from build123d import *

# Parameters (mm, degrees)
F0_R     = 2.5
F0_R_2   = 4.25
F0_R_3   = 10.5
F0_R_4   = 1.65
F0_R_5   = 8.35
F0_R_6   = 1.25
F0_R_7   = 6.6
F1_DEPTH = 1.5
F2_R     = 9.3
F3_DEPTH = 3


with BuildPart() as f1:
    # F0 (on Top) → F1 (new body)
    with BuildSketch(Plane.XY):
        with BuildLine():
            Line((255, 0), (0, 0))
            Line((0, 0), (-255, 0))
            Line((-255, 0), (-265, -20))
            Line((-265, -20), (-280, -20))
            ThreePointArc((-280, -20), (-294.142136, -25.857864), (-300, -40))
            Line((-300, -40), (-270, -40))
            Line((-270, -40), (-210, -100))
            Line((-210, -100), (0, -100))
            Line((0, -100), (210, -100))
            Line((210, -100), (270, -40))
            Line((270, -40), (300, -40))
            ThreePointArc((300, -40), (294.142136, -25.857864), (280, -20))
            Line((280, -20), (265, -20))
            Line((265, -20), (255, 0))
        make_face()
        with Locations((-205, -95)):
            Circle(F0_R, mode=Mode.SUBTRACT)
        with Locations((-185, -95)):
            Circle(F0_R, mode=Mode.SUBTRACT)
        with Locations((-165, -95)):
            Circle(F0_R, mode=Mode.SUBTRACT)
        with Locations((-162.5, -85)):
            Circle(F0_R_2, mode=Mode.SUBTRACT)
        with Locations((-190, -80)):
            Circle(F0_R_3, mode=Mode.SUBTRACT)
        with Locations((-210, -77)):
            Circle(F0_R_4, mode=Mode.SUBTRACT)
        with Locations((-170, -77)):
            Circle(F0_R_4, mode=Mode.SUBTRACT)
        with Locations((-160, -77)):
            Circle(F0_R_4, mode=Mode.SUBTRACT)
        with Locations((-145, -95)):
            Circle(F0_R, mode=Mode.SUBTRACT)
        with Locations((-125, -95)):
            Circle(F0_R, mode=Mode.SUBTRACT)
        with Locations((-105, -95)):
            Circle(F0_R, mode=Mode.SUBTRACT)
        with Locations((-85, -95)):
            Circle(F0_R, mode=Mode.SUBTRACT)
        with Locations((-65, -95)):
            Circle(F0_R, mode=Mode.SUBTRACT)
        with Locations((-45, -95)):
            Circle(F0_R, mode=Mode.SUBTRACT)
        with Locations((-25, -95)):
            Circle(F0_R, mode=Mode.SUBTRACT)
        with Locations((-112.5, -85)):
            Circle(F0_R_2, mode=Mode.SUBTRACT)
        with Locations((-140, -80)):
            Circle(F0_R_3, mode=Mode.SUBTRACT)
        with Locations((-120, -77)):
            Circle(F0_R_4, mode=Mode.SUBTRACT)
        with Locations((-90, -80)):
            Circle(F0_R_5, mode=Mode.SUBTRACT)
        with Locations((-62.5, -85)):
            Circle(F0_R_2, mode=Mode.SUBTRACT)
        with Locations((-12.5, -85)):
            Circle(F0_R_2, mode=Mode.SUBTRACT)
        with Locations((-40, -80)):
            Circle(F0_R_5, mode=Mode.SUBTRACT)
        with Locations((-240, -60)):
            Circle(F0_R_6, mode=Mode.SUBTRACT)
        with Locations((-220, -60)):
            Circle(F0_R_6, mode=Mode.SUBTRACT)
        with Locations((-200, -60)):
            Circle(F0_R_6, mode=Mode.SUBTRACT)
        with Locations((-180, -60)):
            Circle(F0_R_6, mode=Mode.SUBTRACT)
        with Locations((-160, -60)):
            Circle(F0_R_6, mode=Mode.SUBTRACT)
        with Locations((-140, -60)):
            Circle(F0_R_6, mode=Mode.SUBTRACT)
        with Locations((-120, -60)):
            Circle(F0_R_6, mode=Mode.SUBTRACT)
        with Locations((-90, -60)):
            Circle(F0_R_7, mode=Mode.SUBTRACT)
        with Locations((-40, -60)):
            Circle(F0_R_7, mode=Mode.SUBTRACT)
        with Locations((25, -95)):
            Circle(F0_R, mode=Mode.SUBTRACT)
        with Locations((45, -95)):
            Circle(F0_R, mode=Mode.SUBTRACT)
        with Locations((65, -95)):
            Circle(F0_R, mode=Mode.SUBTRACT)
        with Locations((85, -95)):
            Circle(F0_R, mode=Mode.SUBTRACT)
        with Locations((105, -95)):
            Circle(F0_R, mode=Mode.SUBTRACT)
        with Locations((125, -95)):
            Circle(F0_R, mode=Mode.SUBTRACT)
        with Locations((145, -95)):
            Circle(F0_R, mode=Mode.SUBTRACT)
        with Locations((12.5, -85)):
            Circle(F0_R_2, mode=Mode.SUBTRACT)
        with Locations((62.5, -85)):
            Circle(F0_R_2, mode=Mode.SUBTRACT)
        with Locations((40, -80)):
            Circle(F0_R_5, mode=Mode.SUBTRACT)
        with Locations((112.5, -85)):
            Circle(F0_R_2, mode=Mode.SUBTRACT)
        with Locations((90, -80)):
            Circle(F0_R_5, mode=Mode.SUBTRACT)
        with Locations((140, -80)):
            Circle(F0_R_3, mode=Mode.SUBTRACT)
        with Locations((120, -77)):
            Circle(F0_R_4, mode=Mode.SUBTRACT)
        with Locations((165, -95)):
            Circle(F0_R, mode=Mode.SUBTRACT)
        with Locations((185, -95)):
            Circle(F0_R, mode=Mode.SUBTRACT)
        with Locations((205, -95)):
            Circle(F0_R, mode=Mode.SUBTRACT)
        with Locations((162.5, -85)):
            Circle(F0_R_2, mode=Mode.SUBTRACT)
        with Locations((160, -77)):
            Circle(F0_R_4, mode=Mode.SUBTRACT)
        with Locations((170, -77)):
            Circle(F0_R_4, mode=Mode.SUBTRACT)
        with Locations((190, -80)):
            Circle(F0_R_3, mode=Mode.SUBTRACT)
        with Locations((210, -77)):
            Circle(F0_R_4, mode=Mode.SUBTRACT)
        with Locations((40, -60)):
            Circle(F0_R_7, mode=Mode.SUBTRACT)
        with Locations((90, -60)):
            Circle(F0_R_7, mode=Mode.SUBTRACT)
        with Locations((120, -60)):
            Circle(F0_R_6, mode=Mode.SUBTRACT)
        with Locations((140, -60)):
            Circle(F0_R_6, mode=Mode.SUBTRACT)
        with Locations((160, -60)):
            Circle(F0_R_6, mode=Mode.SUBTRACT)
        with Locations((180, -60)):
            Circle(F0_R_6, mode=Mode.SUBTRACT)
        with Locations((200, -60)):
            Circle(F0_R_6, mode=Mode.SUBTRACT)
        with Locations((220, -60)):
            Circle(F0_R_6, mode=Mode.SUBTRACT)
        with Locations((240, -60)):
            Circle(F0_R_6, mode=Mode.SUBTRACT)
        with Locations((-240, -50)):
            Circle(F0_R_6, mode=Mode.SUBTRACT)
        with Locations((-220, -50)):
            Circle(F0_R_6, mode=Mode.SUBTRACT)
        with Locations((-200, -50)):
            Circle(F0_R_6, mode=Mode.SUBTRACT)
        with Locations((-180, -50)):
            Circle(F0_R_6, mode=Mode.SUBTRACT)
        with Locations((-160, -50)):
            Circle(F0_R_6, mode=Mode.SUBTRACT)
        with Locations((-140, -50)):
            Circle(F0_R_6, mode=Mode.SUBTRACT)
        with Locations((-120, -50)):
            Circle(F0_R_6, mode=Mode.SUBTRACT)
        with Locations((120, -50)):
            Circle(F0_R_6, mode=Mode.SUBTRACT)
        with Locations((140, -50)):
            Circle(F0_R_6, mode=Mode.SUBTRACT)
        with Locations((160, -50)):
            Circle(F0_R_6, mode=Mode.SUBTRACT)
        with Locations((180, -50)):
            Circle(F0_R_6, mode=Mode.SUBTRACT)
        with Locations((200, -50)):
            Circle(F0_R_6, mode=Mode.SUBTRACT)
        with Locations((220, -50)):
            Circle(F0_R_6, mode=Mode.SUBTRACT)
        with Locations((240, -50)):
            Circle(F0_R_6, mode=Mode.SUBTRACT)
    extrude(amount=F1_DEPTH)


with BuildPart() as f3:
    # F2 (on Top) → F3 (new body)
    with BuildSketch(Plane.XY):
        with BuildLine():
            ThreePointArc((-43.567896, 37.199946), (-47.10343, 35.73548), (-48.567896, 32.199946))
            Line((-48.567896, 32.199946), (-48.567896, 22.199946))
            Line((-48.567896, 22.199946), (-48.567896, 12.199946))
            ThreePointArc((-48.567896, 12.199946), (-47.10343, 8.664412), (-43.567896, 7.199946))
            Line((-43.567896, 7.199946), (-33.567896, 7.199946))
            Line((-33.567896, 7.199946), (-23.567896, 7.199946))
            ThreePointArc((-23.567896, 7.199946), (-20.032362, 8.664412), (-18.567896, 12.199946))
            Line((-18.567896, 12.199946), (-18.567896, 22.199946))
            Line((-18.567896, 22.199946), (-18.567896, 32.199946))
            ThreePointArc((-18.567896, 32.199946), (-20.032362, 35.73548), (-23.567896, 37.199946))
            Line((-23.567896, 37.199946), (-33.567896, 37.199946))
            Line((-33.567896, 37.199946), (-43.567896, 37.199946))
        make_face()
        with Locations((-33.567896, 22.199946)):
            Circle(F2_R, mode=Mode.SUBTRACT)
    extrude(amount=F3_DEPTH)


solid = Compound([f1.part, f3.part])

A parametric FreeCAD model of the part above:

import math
import FreeCAD as App
import Part
import Sketcher

doc = App.newDocument("Part")
body = doc.addObject("PartDesign::Body", "Body")

# Sketch on XY plane
sketch1 = body.newObject("Sketcher::SketchObject", "Sketch")
sketch1.AttachmentSupport = (doc.getObject("XY_Plane"), [""])
sketch1.MapMode = "FlatFace"
sketch1.addGeometry([
    Part.LineSegment(App.Vector(255, 0, 0), App.Vector(-255, 0, 0)),  # 0
    Part.LineSegment(App.Vector(-255, 0, 0), App.Vector(-265, -20, 0)),  # 1
    Part.LineSegment(App.Vector(-265, -20, 0), App.Vector(-280, -20, 0)),  # 2
    Part.ArcOfCircle(Part.Circle(App.Vector(-280.000001, -39.999999, 0), App.Vector(0, 0, 1), 19.999999), math.radians(89.999996), math.radians(180.000004)),  # 3
    Part.LineSegment(App.Vector(-300, -40, 0), App.Vector(-270, -40, 0)),  # 4
    Part.LineSegment(App.Vector(-270, -40, 0), App.Vector(-210, -100, 0)),  # 5
    Part.LineSegment(App.Vector(-210, -100, 0), App.Vector(210, -100, 0)),  # 6
    Part.LineSegment(App.Vector(210, -100, 0), App.Vector(270, -40, 0)),  # 7
    Part.LineSegment(App.Vector(270, -40, 0), App.Vector(300, -40, 0)),  # 8
    Part.ArcOfCircle(Part.Circle(App.Vector(280.000001, -39.999999, 0), App.Vector(0, 0, 1), 19.999999), math.radians(-0.000004), math.radians(90.000004)),  # 9
    Part.LineSegment(App.Vector(280, -20, 0), App.Vector(265, -20, 0)),  # 10
    Part.LineSegment(App.Vector(265, -20, 0), App.Vector(255, 0, 0)),  # 11
    Part.Circle(App.Vector(-205, -95, 0), App.Vector(0, 0, 1), 2.5),  # 12
    Part.Circle(App.Vector(-185, -95, 0), App.Vector(0, 0, 1), 2.5),  # 13
    Part.Circle(App.Vector(-165, -95, 0), App.Vector(0, 0, 1), 2.5),  # 14
    Part.Circle(App.Vector(-145, -95, 0), App.Vector(0, 0, 1), 2.5),  # 15
    Part.Circle(App.Vector(-125, -95, 0), App.Vector(0, 0, 1), 2.5),  # 16
    Part.Circle(App.Vector(-105, -95, 0), App.Vector(0, 0, 1), 2.5),  # 17
    Part.Circle(App.Vector(-85, -95, 0), App.Vector(0, 0, 1), 2.5),  # 18
    Part.Circle(App.Vector(-65, -95, 0), App.Vector(0, 0, 1), 2.5),  # 19
    Part.Circle(App.Vector(-45, -95, 0), App.Vector(0, 0, 1), 2.5),  # 20
    Part.Circle(App.Vector(-25, -95, 0), App.Vector(0, 0, 1), 2.5),  # 21
    Part.Circle(App.Vector(-190, -80, 0), App.Vector(0, 0, 1), 10.5),  # 22
    Part.Circle(App.Vector(-162.5, -85, 0), App.Vector(0, 0, 1), 4.25),  # 23
    Part.Circle(App.Vector(-140, -80, 0), App.Vector(0, 0, 1), 10.5),  # 24
    Part.Circle(App.Vector(-210, -77, 0), App.Vector(0, 0, 1), 1.65),  # 25
    Part.Circle(App.Vector(-170, -77, 0), App.Vector(0, 0, 1), 1.65),  # 26
    Part.Circle(App.Vector(-160, -77, 0), App.Vector(0, 0, 1), 1.65),  # 27
    Part.Circle(App.Vector(-112.5, -85, 0), App.Vector(0, 0, 1), 4.25),  # 28
    Part.Circle(App.Vector(-62.5, -85, 0), App.Vector(0, 0, 1), 4.25),  # 29
    Part.Circle(App.Vector(-90, -80, 0), App.Vector(0, 0, 1), 8.35),  # 30
    Part.Circle(App.Vector(-12.5, -85, 0), App.Vector(0, 0, 1), 4.25),  # 31
    Part.Circle(App.Vector(-40, -80, 0), App.Vector(0, 0, 1), 8.35),  # 32
    Part.Circle(App.Vector(-120, -77, 0), App.Vector(0, 0, 1), 1.65),  # 33
    Part.Circle(App.Vector(25, -95, 0), App.Vector(0, 0, 1), 2.5),  # 34
    Part.Circle(App.Vector(45, -95, 0), App.Vector(0, 0, 1), 2.5),  # 35
    Part.Circle(App.Vector(65, -95, 0), App.Vector(0, 0, 1), 2.5),  # 36
    Part.Circle(App.Vector(85, -95, 0), App.Vector(0, 0, 1), 2.5),  # 37
    Part.Circle(App.Vector(105, -95, 0), App.Vector(0, 0, 1), 2.5),  # 38
    Part.Circle(App.Vector(125, -95, 0), App.Vector(0, 0, 1), 2.5),  # 39
    Part.Circle(App.Vector(145, -95, 0), App.Vector(0, 0, 1), 2.5),  # 40
    Part.Circle(App.Vector(165, -95, 0), App.Vector(0, 0, 1), 2.5),  # 41
    Part.Circle(App.Vector(185, -95, 0), App.Vector(0, 0, 1), 2.5),  # 42
    Part.Circle(App.Vector(205, -95, 0), App.Vector(0, 0, 1), 2.5),  # 43
    Part.Circle(App.Vector(12.5, -85, 0), App.Vector(0, 0, 1), 4.25),  # 44
    Part.Circle(App.Vector(40, -80, 0), App.Vector(0, 0, 1), 8.35),  # 45
    Part.Circle(App.Vector(62.5, -85, 0), App.Vector(0, 0, 1), 4.25),  # 46
    Part.Circle(App.Vector(112.5, -85, 0), App.Vector(0, 0, 1), 4.25),  # 47
    Part.Circle(App.Vector(90, -80, 0), App.Vector(0, 0, 1), 8.35),  # 48
    Part.Circle(App.Vector(120, -77, 0), App.Vector(0, 0, 1), 1.65),  # 49
    Part.Circle(App.Vector(162.5, -85, 0), App.Vector(0, 0, 1), 4.25),  # 50
    Part.Circle(App.Vector(140, -80, 0), App.Vector(0, 0, 1), 10.5),  # 51
    Part.Circle(App.Vector(190, -80, 0), App.Vector(0, 0, 1), 10.5),  # 52
    Part.Circle(App.Vector(160, -77, 0), App.Vector(0, 0, 1), 1.65),  # 53
    Part.Circle(App.Vector(170, -77, 0), App.Vector(0, 0, 1), 1.65),  # 54
    Part.Circle(App.Vector(210, -77, 0), App.Vector(0, 0, 1), 1.65),  # 55
    Part.Circle(App.Vector(-240, -60, 0), App.Vector(0, 0, 1), 1.25),  # 56
    Part.Circle(App.Vector(-220, -60, 0), App.Vector(0, 0, 1), 1.25),  # 57
    Part.Circle(App.Vector(-200, -60, 0), App.Vector(0, 0, 1), 1.25),  # 58
    Part.Circle(App.Vector(-180, -60, 0), App.Vector(0, 0, 1), 1.25),  # 59
    Part.Circle(App.Vector(-160, -60, 0), App.Vector(0, 0, 1), 1.25),  # 60
    Part.Circle(App.Vector(-140, -60, 0), App.Vector(0, 0, 1), 1.25),  # 61
    Part.Circle(App.Vector(-240, -50, 0), App.Vector(0, 0, 1), 1.25),  # 62
    Part.Circle(App.Vector(-220, -50, 0), App.Vector(0, 0, 1), 1.25),  # 63
    Part.Circle(App.Vector(-200, -50, 0), App.Vector(0, 0, 1), 1.25),  # 64
    Part.Circle(App.Vector(-180, -50, 0), App.Vector(0, 0, 1), 1.25),  # 65
    Part.Circle(App.Vector(-160, -50, 0), App.Vector(0, 0, 1), 1.25),  # 66
    Part.Circle(App.Vector(-140, -50, 0), App.Vector(0, 0, 1), 1.25),  # 67
    Part.Circle(App.Vector(-120, -60, 0), App.Vector(0, 0, 1), 1.25),  # 68
    Part.Circle(App.Vector(-90, -60, 0), App.Vector(0, 0, 1), 6.6),  # 69
    Part.Circle(App.Vector(-40, -60, 0), App.Vector(0, 0, 1), 6.6),  # 70
    Part.Circle(App.Vector(-120, -50, 0), App.Vector(0, 0, 1), 1.25),  # 71
    Part.Circle(App.Vector(40, -60, 0), App.Vector(0, 0, 1), 6.6),  # 72
    Part.Circle(App.Vector(90, -60, 0), App.Vector(0, 0, 1), 6.6),  # 73
    Part.Circle(App.Vector(120, -60, 0), App.Vector(0, 0, 1), 1.25),  # 74
    Part.Circle(App.Vector(120, -50, 0), App.Vector(0, 0, 1), 1.25),  # 75
    Part.Circle(App.Vector(140, -60, 0), App.Vector(0, 0, 1), 1.25),  # 76
    Part.Circle(App.Vector(160, -60, 0), App.Vector(0, 0, 1), 1.25),  # 77
    Part.Circle(App.Vector(180, -60, 0), App.Vector(0, 0, 1), 1.25),  # 78
    Part.Circle(App.Vector(200, -60, 0), App.Vector(0, 0, 1), 1.25),  # 79
    Part.Circle(App.Vector(220, -60, 0), App.Vector(0, 0, 1), 1.25),  # 80
    Part.Circle(App.Vector(240, -60, 0), App.Vector(0, 0, 1), 1.25),  # 81
    Part.Circle(App.Vector(140, -50, 0), App.Vector(0, 0, 1), 1.25),  # 82
    Part.Circle(App.Vector(160, -50, 0), App.Vector(0, 0, 1), 1.25),  # 83
    Part.Circle(App.Vector(180, -50, 0), App.Vector(0, 0, 1), 1.25),  # 84
    Part.Circle(App.Vector(200, -50, 0), App.Vector(0, 0, 1), 1.25),  # 85
    Part.Circle(App.Vector(220, -50, 0), App.Vector(0, 0, 1), 1.25),  # 86
    Part.Circle(App.Vector(240, -50, 0), App.Vector(0, 0, 1), 1.25),  # 87
], False)
sketch1.addConstraint([
    Sketcher.Constraint("Coincident", 0, 2, 1, 1),
    Sketcher.Constraint("Coincident", 1, 2, 2, 1),
    Sketcher.Constraint("Tangent", 2, 2, 3, 1),
    Sketcher.Constraint("Coincident", 3, 2, 4, 1),
    Sketcher.Constraint("Coincident", 4, 2, 5, 1),
    Sketcher.Constraint("Coincident", 5, 2, 6, 1),
    Sketcher.Constraint("Coincident", 6, 2, 7, 1),
    Sketcher.Constraint("Coincident", 7, 2, 8, 1),
    Sketcher.Constraint("Coincident", 8, 2, 9, 1),
    Sketcher.Constraint("Tangent", 9, 2, 10, 1),
    Sketcher.Constraint("Coincident", 10, 2, 11, 1),
    Sketcher.Constraint("Coincident", 11, 2, 0, 1),
    Sketcher.Constraint("Horizontal", 0),
    Sketcher.Constraint("Horizontal", 2),
    Sketcher.Constraint("Horizontal", 4),
    Sketcher.Constraint("Horizontal", 6),
    Sketcher.Constraint("Horizontal", 8),
    Sketcher.Constraint("Horizontal", 10),
    Sketcher.Constraint("Equal", 3, 9),
    Sketcher.Constraint("Equal", 12, 13),
    Sketcher.Constraint("Equal", 13, 14),
    Sketcher.Constraint("Equal", 14, 15),
    Sketcher.Constraint("Equal", 15, 16),
    Sketcher.Constraint("Equal", 16, 17),
    Sketcher.Constraint("Equal", 17, 18),
    Sketcher.Constraint("Equal", 18, 19),
    Sketcher.Constraint("Equal", 19, 20),
    Sketcher.Constraint("Equal", 20, 21),
    Sketcher.Constraint("Equal", 22, 24),
    Sketcher.Constraint("Equal", 25, 26),
    Sketcher.Constraint("Equal", 26, 27),
    Sketcher.Constraint("Equal", 23, 28),
    Sketcher.Constraint("Equal", 28, 29),
    Sketcher.Constraint("Equal", 29, 31),
    Sketcher.Constraint("Equal", 30, 32),
    Sketcher.Constraint("Equal", 27, 33),
    Sketcher.Constraint("Equal", 21, 34),
    Sketcher.Constraint("Equal", 34, 35),
    Sketcher.Constraint("Equal", 35, 36),
    Sketcher.Constraint("Equal", 36, 37),
    Sketcher.Constraint("Equal", 37, 38),
    Sketcher.Constraint("Equal", 38, 39),
    Sketcher.Constraint("Equal", 39, 40),
    Sketcher.Constraint("Equal", 40, 41),
    Sketcher.Constraint("Equal", 41, 42),
    Sketcher.Constraint("Equal", 42, 43),
    Sketcher.Constraint("Equal", 31, 44),
    Sketcher.Constraint("Equal", 32, 45),
    Sketcher.Constraint("Equal", 44, 46),
    Sketcher.Constraint("Equal", 46, 47),
    Sketcher.Constraint("Equal", 45, 48),
    Sketcher.Constraint("Equal", 33, 49),
    Sketcher.Constraint("Equal", 47, 50),
    Sketcher.Constraint("Equal", 24, 51),
    Sketcher.Constraint("Equal", 51, 52),
    Sketcher.Constraint("Equal", 49, 53),
    Sketcher.Constraint("Equal", 53, 54),
    Sketcher.Constraint("Equal", 54, 55),
    Sketcher.Constraint("Equal", 56, 57),
    Sketcher.Constraint("Equal", 57, 58),
    Sketcher.Constraint("Equal", 58, 59),
    Sketcher.Constraint("Equal", 59, 60),
    Sketcher.Constraint("Equal", 60, 61),
    Sketcher.Constraint("Equal", 61, 62),
    Sketcher.Constraint("Equal", 62, 63),
    Sketcher.Constraint("Equal", 63, 64),
    Sketcher.Constraint("Equal", 64, 65),
    Sketcher.Constraint("Equal", 65, 66),
    Sketcher.Constraint("Equal", 66, 67),
    Sketcher.Constraint("Equal", 67, 68),
    Sketcher.Constraint("Equal", 69, 70),
    Sketcher.Constraint("Equal", 68, 71),
    Sketcher.Constraint("Equal", 70, 72),
    Sketcher.Constraint("Equal", 72, 73),
    Sketcher.Constraint("Equal", 71, 74),
    Sketcher.Constraint("Equal", 74, 75),
    Sketcher.Constraint("Equal", 75, 76),
    Sketcher.Constraint("Equal", 76, 77),
    Sketcher.Constraint("Equal", 77, 78),
    Sketcher.Constraint("Equal", 78, 79),
    Sketcher.Constraint("Equal", 79, 80),
    Sketcher.Constraint("Equal", 80, 81),
    Sketcher.Constraint("Equal", 81, 82),
    Sketcher.Constraint("Equal", 82, 83),
    Sketcher.Constraint("Equal", 83, 84),
    Sketcher.Constraint("Equal", 84, 85),
    Sketcher.Constraint("Equal", 85, 86),
    Sketcher.Constraint("Equal", 86, 87),
    Sketcher.Constraint("Symmetric", 0, 2, 11, 2, -1, 1),
    Sketcher.Constraint("Symmetric", 3, 3, 9, 3, -2),
    Sketcher.Constraint("Symmetric", 21, 3, 34, 3, -2),
    Sketcher.Constraint("Symmetric", 20, 3, 35, 3, -2),
    Sketcher.Constraint("Symmetric", 19, 3, 36, 3, -2),
    Sketcher.Constraint("Symmetric", 18, 3, 37, 3, -2),
    Sketcher.Constraint("Symmetric", 17, 3, 38, 3, -2),
    Sketcher.Constraint("Symmetric", 16, 3, 39, 3, -2),
    Sketcher.Constraint("Symmetric", 15, 3, 40, 3, -2),
    Sketcher.Constraint("Symmetric", 14, 3, 41, 3, -2),
    Sketcher.Constraint("Symmetric", 13, 3, 42, 3, -2),
    Sketcher.Constraint("Symmetric", 12, 3, 43, 3, -2),
    Sketcher.Constraint("Symmetric", 31, 3, 44, 3, -2),
    Sketcher.Constraint("Symmetric", 32, 3, 45, 3, -2),
    Sketcher.Constraint("Symmetric", 29, 3, 46, 3, -2),
    Sketcher.Constraint("Symmetric", 28, 3, 47, 3, -2),
    Sketcher.Constraint("Symmetric", 30, 3, 48, 3, -2),
    Sketcher.Constraint("Symmetric", 33, 3, 49, 3, -2),
    Sketcher.Constraint("Symmetric", 23, 3, 50, 3, -2),
    Sketcher.Constraint("Symmetric", 24, 3, 51, 3, -2),
    Sketcher.Constraint("Symmetric", 22, 3, 52, 3, -2),
    Sketcher.Constraint("Symmetric", 27, 3, 53, 3, -2),
    Sketcher.Constraint("Symmetric", 26, 3, 54, 3, -2),
    Sketcher.Constraint("Symmetric", 25, 3, 55, 3, -2),
    Sketcher.Constraint("Symmetric", 70, 3, 72, 3, -2),
    Sketcher.Constraint("Symmetric", 69, 3, 73, 3, -2),
    Sketcher.Constraint("Symmetric", 68, 3, 74, 3, -2),
    Sketcher.Constraint("Symmetric", 71, 3, 75, 3, -2),
    Sketcher.Constraint("Symmetric", 61, 3, 76, 3, -2),
    Sketcher.Constraint("Symmetric", 60, 3, 77, 3, -2),
    Sketcher.Constraint("Symmetric", 59, 3, 78, 3, -2),
    Sketcher.Constraint("Symmetric", 58, 3, 79, 3, -2),
    Sketcher.Constraint("Symmetric", 57, 3, 80, 3, -2),
    Sketcher.Constraint("Symmetric", 56, 3, 81, 3, -2),
    Sketcher.Constraint("Symmetric", 67, 3, 82, 3, -2),
    Sketcher.Constraint("Symmetric", 66, 3, 83, 3, -2),
    Sketcher.Constraint("Symmetric", 65, 3, 84, 3, -2),
    Sketcher.Constraint("Symmetric", 64, 3, 85, 3, -2),
    Sketcher.Constraint("Symmetric", 63, 3, 86, 3, -2),
    Sketcher.Constraint("Symmetric", 62, 3, 87, 3, -2),
    Sketcher.Constraint("Symmetric", 4, 2, 7, 2, -2),
    Sketcher.Constraint("Perpendicular", 5, 7),
    Sketcher.Constraint("Horizontal", 12, 3, 13, 3),
    Sketcher.Constraint("Horizontal", 13, 3, 14, 3),
    Sketcher.Constraint("Horizontal", 14, 3, 15, 3),
    Sketcher.Constraint("Horizontal", 15, 3, 16, 3),
    Sketcher.Constraint("Horizontal", 16, 3, 17, 3),
    Sketcher.Constraint("Horizontal", 17, 3, 18, 3),
    Sketcher.Constraint("Horizontal", 18, 3, 19, 3),
    Sketcher.Constraint("Horizontal", 19, 3, 20, 3),
    Sketcher.Constraint("Horizontal", 20, 3, 21, 3),
    Sketcher.Constraint("Horizontal", 22, 3, 24, 3),
    Sketcher.Constraint("Horizontal", 25, 3, 26, 3),
    Sketcher.Constraint("Horizontal", 26, 3, 27, 3),
    Sketcher.Constraint("Horizontal", 23, 3, 28, 3),
    Sketcher.Constraint("Horizontal", 28, 3, 29, 3),
    Sketcher.Constraint("Horizontal", 24, 3, 30, 3),
    Sketcher.Constraint("Horizontal", 29, 3, 31, 3),
    Sketcher.Constraint("Horizontal", 30, 3, 32, 3),
    Sketcher.Constraint("Horizontal", 27, 3, 33, 3),
    Sketcher.Constraint("Horizontal", 56, 3, 57, 3),
    Sketcher.Constraint("Horizontal", 57, 3, 58, 3),
    Sketcher.Constraint("Horizontal", 58, 3, 59, 3),
    Sketcher.Constraint("Horizontal", 59, 3, 60, 3),
    Sketcher.Constraint("Horizontal", 60, 3, 61, 3),
    Sketcher.Constraint("Horizontal", 62, 3, 63, 3),
    Sketcher.Constraint("Horizontal", 63, 3, 64, 3),
    Sketcher.Constraint("Horizontal", 64, 3, 65, 3),
    Sketcher.Constraint("Horizontal", 65, 3, 66, 3),
    Sketcher.Constraint("Horizontal", 66, 3, 67, 3),
    Sketcher.Constraint("Horizontal", 61, 3, 68, 3),
    Sketcher.Constraint("Horizontal", 68, 3, 69, 3),
    Sketcher.Constraint("Horizontal", 69, 3, 70, 3),
    Sketcher.Constraint("Horizontal", 67, 3, 71, 3),
    Sketcher.Constraint("Horizontal", 9, 3, 3, 2),
    Sketcher.Constraint("Vertical", 27, 3, 60, 3),
    Sketcher.Constraint("Vertical", 24, 3, 61, 3),
    Sketcher.Constraint("Vertical", 56, 3, 62, 3),
    Sketcher.Constraint("Vertical", 57, 3, 63, 3),
    Sketcher.Constraint("Vertical", 58, 3, 64, 3),
    Sketcher.Constraint("Vertical", 59, 3, 65, 3),
    Sketcher.Constraint("Vertical", 60, 3, 66, 3),
    Sketcher.Constraint("Vertical", 61, 3, 67, 3),
    Sketcher.Constraint("Vertical", 33, 3, 68, 3),
    Sketcher.Constraint("Vertical", 30, 3, 69, 3),
    Sketcher.Constraint("Vertical", 32, 3, 70, 3),
    Sketcher.Constraint("Vertical", 68, 3, 71, 3),
    Sketcher.Constraint("Vertical", 25, 3, 5, 2),
    Sketcher.Constraint("Vertical", 55, 3, 6, 2),
    Sketcher.Constraint("Equal", 2, 10),
    Sketcher.Constraint("Diameter", 12, 5.0),
    Sketcher.Constraint("Diameter", 22, 21.0),
    Sketcher.Constraint("Radius", 3, 19.999999),
    Sketcher.Constraint("Diameter", 23, 8.5),
    Sketcher.Constraint("Diameter", 25, 3.3),
    Sketcher.Constraint("Diameter", 30, 16.7),
    Sketcher.Constraint("Diameter", 56, 2.5),
    Sketcher.Constraint("Diameter", 69, 13.2),
    Sketcher.Constraint("DistanceX", 0, 2, 0, 1, 510.0),
    Sketcher.Constraint("DistanceX", 2, 2, 2, 1, 15.0),
    Sketcher.Constraint("DistanceX", 4, 1, 4, 2, 30.0),
    Sketcher.Constraint("DistanceX", 6, 1, 6, 2, 420.0),
    Sketcher.Constraint("DistanceX", 3, 3, -1, 1, 280.000001),
    Sketcher.Constraint("DistanceY", 3, 3, -1, 1, 39.999999),
    Sketcher.Constraint("DistanceX", 12, 3, -1, 1, 205.0),
    Sketcher.Constraint("DistanceY", 12, 3, -1, 1, 95.0),
    Sketcher.Constraint("DistanceX", 13, 3, -1, 1, 185.0),
    Sketcher.Constraint("DistanceX", 14, 3, -1, 1, 165.0),
    Sketcher.Constraint("DistanceX", 15, 3, -1, 1, 145.0),
    Sketcher.Constraint("DistanceX", 16, 3, -1, 1, 125.0),
    Sketcher.Constraint("DistanceX", 17, 3, -1, 1, 105.0),
    Sketcher.Constraint("DistanceX", 18, 3, -1, 1, 85.0),
    Sketcher.Constraint("DistanceX", 19, 3, -1, 1, 65.0),
    Sketcher.Constraint("DistanceX", 20, 3, -1, 1, 45.0),
    Sketcher.Constraint("DistanceX", 21, 3, -1, 1, 25.0),
    Sketcher.Constraint("DistanceX", 22, 3, -1, 1, 190.0),
    Sketcher.Constraint("DistanceY", 22, 3, -1, 1, 80.0),
    Sketcher.Constraint("DistanceY", 23, 3, -1, 1, 85.0),
    Sketcher.Constraint("DistanceX", 24, 3, -1, 1, 140.0),
    Sketcher.Constraint("DistanceY", 25, 3, -1, 1, 77.0),
    Sketcher.Constraint("DistanceX", 26, 3, -1, 1, 170.0),
    Sketcher.Constraint("DistanceX", 27, 3, -1, 1, 160.0),
    Sketcher.Constraint("DistanceX", 30, 3, -1, 1, 90.0),
    Sketcher.Constraint("DistanceX", 32, 3, -1, 1, 40.0),
    Sketcher.Constraint("DistanceX", 33, 3, -1, 1, 120.0),
    Sketcher.Constraint("DistanceX", 56, 3, -1, 1, 240.0),
    Sketcher.Constraint("DistanceY", 56, 3, -1, 1, 60.0),
    Sketcher.Constraint("DistanceX", 57, 3, -1, 1, 220.0),
    Sketcher.Constraint("DistanceX", 58, 3, -1, 1, 200.0),
    Sketcher.Constraint("DistanceX", 59, 3, -1, 1, 180.0),
    Sketcher.Constraint("DistanceY", 62, 3, -1, 1, 50.0),
    Sketcher.Constraint("DistanceX", 23, 3, -1, 1, 162.5),
    Sketcher.Constraint("DistanceX", 28, 3, -1, 1, 112.5),
    Sketcher.Constraint("DistanceX", 29, 3, -1, 1, 62.5),
    Sketcher.Constraint("DistanceX", 31, 3, -1, 1, 12.5),
])
pad1 = body.newObject("PartDesign::Pad", "Pad")
pad1.Profile = sketch1
pad1.Length = 1.5
body2 = doc.addObject("PartDesign::Body", "Body001")

# Sketch on XY plane
sketch2 = body2.newObject("Sketcher::SketchObject", "Sketch001")
sketch2.AttachmentSupport = (doc.getObject("XY_Plane001"), [""])
sketch2.MapMode = "FlatFace"
sketch2.addGeometry([
    Part.ArcOfCircle(Part.Circle(App.Vector(-43.567896, 32.199946, 0), App.Vector(0, 0, 1), 5), math.radians(89.999996), math.radians(180.000004)),  # 0
    Part.LineSegment(App.Vector(-48.567896, 32.199946, 0), App.Vector(-48.567896, 12.199946, 0)),  # 1
    Part.ArcOfCircle(Part.Circle(App.Vector(-43.567896, 12.199946, 0), App.Vector(0, 0, 1), 5), math.radians(179.999996), math.radians(270.000004)),  # 2
    Part.LineSegment(App.Vector(-43.567896, 7.199946, 0), App.Vector(-23.567896, 7.199946, 0)),  # 3
    Part.ArcOfCircle(Part.Circle(App.Vector(-23.567896, 12.199946, 0), App.Vector(0, 0, 1), 5), math.radians(-90.000004), math.radians(0.000004)),  # 4
    Part.LineSegment(App.Vector(-18.567896, 12.199946, 0), App.Vector(-18.567896, 32.199946, 0)),  # 5
    Part.ArcOfCircle(Part.Circle(App.Vector(-23.567896, 32.199946, 0), App.Vector(0, 0, 1), 5), math.radians(-0.000004), math.radians(90.000004)),  # 6
    Part.LineSegment(App.Vector(-23.567896, 37.199946, 0), App.Vector(-43.567896, 37.199946, 0)),  # 7
    Part.Circle(App.Vector(-33.567896, 22.199946, 0), App.Vector(0, 0, 1), 9.3),  # 8
], False)
sketch2.addConstraint([
    Sketcher.Constraint("Tangent", 0, 2, 1, 1),
    Sketcher.Constraint("Tangent", 1, 2, 2, 1),
    Sketcher.Constraint("Tangent", 2, 2, 3, 1),
    Sketcher.Constraint("Tangent", 3, 2, 4, 1),
    Sketcher.Constraint("Tangent", 4, 2, 5, 1),
    Sketcher.Constraint("Tangent", 5, 2, 6, 1),
    Sketcher.Constraint("Tangent", 6, 2, 7, 1),
    Sketcher.Constraint("Tangent", 7, 2, 0, 1),
    Sketcher.Constraint("Vertical", 1),
    Sketcher.Constraint("Horizontal", 3),
    Sketcher.Constraint("Vertical", 5),
    Sketcher.Constraint("Horizontal", 7),
    Sketcher.Constraint("Equal", 0, 2),
    Sketcher.Constraint("Equal", 2, 4),
    Sketcher.Constraint("Equal", 4, 6),
    Sketcher.Constraint("Equal", 7, 1),
    Sketcher.Constraint("Radius", 0, 5.0),
    Sketcher.Constraint("Diameter", 8, 18.6),
    Sketcher.Constraint("DistanceX", 3, 1, 3, 2, 20.0),
    Sketcher.Constraint("DistanceX", 8, 3, 4, 3, 10.0),
    Sketcher.Constraint("DistanceY", 4, 3, 8, 3, 10.0),
    Sketcher.Constraint("DistanceX", 0, 3, -1, 1, 43.567896),
    Sketcher.Constraint("DistanceY", -1, 1, 0, 3, 32.199946),
])
pad2 = body2.newObject("PartDesign::Pad", "Pad001")
pad2.Profile = sketch2
pad2.Length = 3

doc.recompute()
